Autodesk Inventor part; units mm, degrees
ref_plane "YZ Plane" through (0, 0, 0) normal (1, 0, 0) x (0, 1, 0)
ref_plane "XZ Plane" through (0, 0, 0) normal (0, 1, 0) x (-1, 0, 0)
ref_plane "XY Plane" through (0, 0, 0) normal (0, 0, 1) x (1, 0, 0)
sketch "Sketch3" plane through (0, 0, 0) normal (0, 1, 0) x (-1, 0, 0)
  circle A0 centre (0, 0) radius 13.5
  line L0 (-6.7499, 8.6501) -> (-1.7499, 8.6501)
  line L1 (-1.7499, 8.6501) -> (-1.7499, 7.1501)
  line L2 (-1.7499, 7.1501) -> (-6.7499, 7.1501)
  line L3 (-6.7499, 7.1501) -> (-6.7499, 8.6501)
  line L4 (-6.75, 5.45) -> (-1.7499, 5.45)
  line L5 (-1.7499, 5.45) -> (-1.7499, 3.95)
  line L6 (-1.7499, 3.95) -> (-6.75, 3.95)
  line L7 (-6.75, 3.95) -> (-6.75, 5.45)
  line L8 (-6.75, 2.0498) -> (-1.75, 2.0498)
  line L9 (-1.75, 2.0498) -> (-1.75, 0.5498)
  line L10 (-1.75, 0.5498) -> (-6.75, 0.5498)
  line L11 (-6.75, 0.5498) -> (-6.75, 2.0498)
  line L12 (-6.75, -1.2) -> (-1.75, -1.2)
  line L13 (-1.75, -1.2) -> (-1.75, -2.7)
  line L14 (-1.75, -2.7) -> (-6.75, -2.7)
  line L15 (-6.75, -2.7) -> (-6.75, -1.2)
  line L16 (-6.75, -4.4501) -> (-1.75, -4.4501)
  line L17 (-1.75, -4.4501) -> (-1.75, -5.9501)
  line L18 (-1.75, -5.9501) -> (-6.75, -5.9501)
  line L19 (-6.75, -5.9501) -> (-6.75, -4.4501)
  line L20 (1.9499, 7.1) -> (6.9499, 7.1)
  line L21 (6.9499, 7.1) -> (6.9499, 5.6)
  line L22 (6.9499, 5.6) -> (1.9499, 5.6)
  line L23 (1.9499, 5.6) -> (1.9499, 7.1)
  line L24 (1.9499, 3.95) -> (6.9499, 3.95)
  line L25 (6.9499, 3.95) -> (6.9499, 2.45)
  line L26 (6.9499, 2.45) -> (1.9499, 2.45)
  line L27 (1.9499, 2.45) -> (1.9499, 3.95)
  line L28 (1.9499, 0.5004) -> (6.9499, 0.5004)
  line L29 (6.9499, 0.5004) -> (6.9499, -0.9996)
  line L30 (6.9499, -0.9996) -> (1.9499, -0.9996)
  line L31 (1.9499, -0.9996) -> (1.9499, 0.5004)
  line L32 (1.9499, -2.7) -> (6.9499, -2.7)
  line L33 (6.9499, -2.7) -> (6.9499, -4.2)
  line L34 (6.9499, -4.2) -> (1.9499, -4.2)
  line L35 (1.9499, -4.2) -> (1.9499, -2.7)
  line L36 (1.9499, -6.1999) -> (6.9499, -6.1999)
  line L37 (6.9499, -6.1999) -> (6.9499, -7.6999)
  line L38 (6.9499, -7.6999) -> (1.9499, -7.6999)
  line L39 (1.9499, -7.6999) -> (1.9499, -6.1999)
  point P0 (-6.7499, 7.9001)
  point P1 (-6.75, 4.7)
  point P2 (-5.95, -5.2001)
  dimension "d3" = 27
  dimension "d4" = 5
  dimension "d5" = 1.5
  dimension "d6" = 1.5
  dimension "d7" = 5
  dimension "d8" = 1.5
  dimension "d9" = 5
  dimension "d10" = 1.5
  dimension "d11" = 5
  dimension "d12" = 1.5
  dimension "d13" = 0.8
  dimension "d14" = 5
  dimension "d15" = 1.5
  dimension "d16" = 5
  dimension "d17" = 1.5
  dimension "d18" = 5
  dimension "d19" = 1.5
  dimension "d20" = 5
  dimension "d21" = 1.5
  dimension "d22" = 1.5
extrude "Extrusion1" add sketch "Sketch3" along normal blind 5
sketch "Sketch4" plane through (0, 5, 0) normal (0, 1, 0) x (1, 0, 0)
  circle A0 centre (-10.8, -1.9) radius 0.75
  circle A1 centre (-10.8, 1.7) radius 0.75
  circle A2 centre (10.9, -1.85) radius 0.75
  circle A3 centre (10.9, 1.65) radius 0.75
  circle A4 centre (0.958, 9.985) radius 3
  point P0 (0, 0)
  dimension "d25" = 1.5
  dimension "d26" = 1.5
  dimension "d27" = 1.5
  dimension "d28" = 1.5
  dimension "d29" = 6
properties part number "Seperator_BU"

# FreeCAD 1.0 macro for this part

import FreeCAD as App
import Part
import Sketcher
Q = App.Units.Quantity

doc = App.newDocument("Part")
body = doc.addObject("PartDesign::Body", "Body")

# Sketch on XZ plane
sketch1 = body.newObject("Sketcher::SketchObject", "Sketch")
sketch1.AttachmentSupport = (doc.getObject("XZ_Plane"), [""])
sketch1.MapMode = "FlatFace"
sketch1.addGeometry(Part.Circle(App.Vector(0, 0, 0), App.Vector(0, 0, 1), 13.5), False)
sketch1.addGeometry(Part.LineSegment(App.Vector(6.8, -6, 0), App.Vector(6.8, -4.5, 0)), False)
sketch1.addGeometry(Part.LineSegment(App.Vector(6.8, -4.5, 0), App.Vector(1.8, -4.5, 0)), False)
sketch1.addGeometry(Part.LineSegment(App.Vector(1.8, -4.5, 0), App.Vector(1.8, -6, 0)), False)
sketch1.addGeometry(Part.LineSegment(App.Vector(1.8, -6, 0), App.Vector(6.8, -6, 0)), False)
sketch1.addGeometry(Part.LineSegment(App.Vector(6.8, -2.7, 0), App.Vector(6.8, -1.2, 0)), False)
sketch1.addGeometry(Part.LineSegment(App.Vector(6.8, -1.2, 0), App.Vector(1.8, -1.2, 0)), False)
sketch1.addGeometry(Part.LineSegment(App.Vector(1.8, -1.2, 0), App.Vector(1.8, -2.7, 0)), False)
sketch1.addGeometry(Part.LineSegment(App.Vector(1.8, -2.7, 0), App.Vector(6.8, -2.7, 0)), False)
sketch1.addGeometry(Part.LineSegment(App.Vector(-1.9, -7.7, 0), App.Vector(-1.9, -6.2, 0)), False)
sketch1.addGeometry(Part.LineSegment(App.Vector(-1.9, -6.2, 0), App.Vector(-6.9, -6.2, 0)), False)
sketch1.addGeometry(Part.LineSegment(App.Vector(-6.9, -6.2, 0), App.Vector(-6.9, -7.7, 0)), False)
sketch1.addGeometry(Part.LineSegment(App.Vector(-6.9, -7.7, 0), App.Vector(-1.9, -7.7, 0)), False)
sketch1.addGeometry(Part.LineSegment(App.Vector(-1.9, -4.2, 0), App.Vector(-1.9, -2.7, 0)), False)
sketch1.addGeometry(Part.LineSegment(App.Vector(-1.9, -2.7, 0), App.Vector(-6.9, -2.7, 0)), False)
sketch1.addGeometry(Part.LineSegment(App.Vector(-6.9, -2.7, 0), App.Vector(-6.9, -4.2, 0)), False)
sketch1.addGeometry(Part.LineSegment(App.Vector(-6.9, -4.2, 0), App.Vector(-1.9, -4.2, 0)), False)
sketch1.addGeometry(Part.LineSegment(App.Vector(-1.9, -1, 0), App.Vector(-1.9, 0.5, 0)), False)
sketch1.addGeometry(Part.LineSegment(App.Vector(-1.9, 0.5, 0), App.Vector(-6.9, 0.5, 0)), False)
sketch1.addGeometry(Part.LineSegment(App.Vector(-6.9, 0.5, 0), App.Vector(-6.9, -1, 0)), False)
sketch1.addGeometry(Part.LineSegment(App.Vector(-6.9, -1, 0), App.Vector(-1.9, -1, 0)), False)
sketch1.addGeometry(Part.LineSegment(App.Vector(6.8, 0.5, 0), App.Vector(6.8, 2, 0)), False)
sketch1.addGeometry(Part.LineSegment(App.Vector(6.8, 2, 0), App.Vector(1.8, 2, 0)), False)
sketch1.addGeometry(Part.LineSegment(App.Vector(1.8, 2, 0), App.Vector(1.8, 0.5, 0)), False)
sketch1.addGeometry(Part.LineSegment(App.Vector(1.8, 0.5, 0), App.Vector(6.8, 0.5, 0)), False)
sketch1.addGeometry(Part.LineSegment(App.Vector(6.8, 4, 0), App.Vector(6.8, 5.5, 0)), False)
sketch1.addGeometry(Part.LineSegment(App.Vector(6.8, 5.5, 0), App.Vector(1.7, 5.5, 0)), False)
sketch1.addGeometry(Part.LineSegment(App.Vector(1.7, 5.5, 0), App.Vector(1.7, 4, 0)), False)
sketch1.addGeometry(Part.LineSegment(App.Vector(1.7, 4, 0), App.Vector(6.8, 4, 0)), False)
sketch1.addGeometry(Part.LineSegment(App.Vector(6.7, 7.2, 0), App.Vector(6.7, 8.7, 0)), False)
sketch1.addGeometry(Part.LineSegment(App.Vector(6.7, 8.7, 0), App.Vector(1.7, 8.7, 0)), False)
sketch1.addGeometry(Part.LineSegment(App.Vector(1.7, 8.7, 0), App.Vector(1.7, 7.2, 0)), False)
sketch1.addGeometry(Part.LineSegment(App.Vector(1.7, 7.2, 0), App.Vector(6.7, 7.2, 0)), False)
sketch1.addGeometry(Part.LineSegment(App.Vector(-1.9, 2.5, 0), App.Vector(-1.9, 4, 0)), False)
sketch1.addGeometry(Part.LineSegment(App.Vector(-1.9, 4, 0), App.Vector(-6.9, 4, 0)), False)
sketch1.addGeometry(Part.LineSegment(App.Vector(-6.9, 4, 0), App.Vector(-6.9, 2.5, 0)), False)
sketch1.addGeometry(Part.LineSegment(App.Vector(-6.9, 2.5, 0), App.Vector(-1.9, 2.5, 0)), False)
sketch1.addGeometry(Part.LineSegment(App.Vector(-1.9, 5.6, 0), App.Vector(-1.9, 7.1, 0)), False)
sketch1.addGeometry(Part.LineSegment(App.Vector(-1.9, 7.1, 0), App.Vector(-6.9, 7.1, 0)), False)
sketch1.addGeometry(Part.LineSegment(App.Vector(-6.9, 7.1, 0), App.Vector(-6.9, 5.6, 0)), False)
sketch1.addGeometry(Part.LineSegment(App.Vector(-6.9, 5.6, 0), App.Vector(-1.9, 5.6, 0)), False)
sketch1.addConstraint(Sketcher.Constraint("Coincident", 1, 2, 2, 1))
sketch1.addConstraint(Sketcher.Constraint("Coincident", 2, 2, 3, 1))
sketch1.addConstraint(Sketcher.Constraint("Coincident", 3, 2, 4, 1))
sketch1.addConstraint(Sketcher.Constraint("Coincident", 4, 2, 1, 1))
sketch1.addConstraint(Sketcher.Constraint("Coincident", 5, 2, 6, 1))
sketch1.addConstraint(Sketcher.Constraint("Coincident", 6, 2, 7, 1))
sketch1.addConstraint(Sketcher.Constraint("Coincident", 7, 2, 8, 1))
sketch1.addConstraint(Sketcher.Constraint("Coincident", 8, 2, 5, 1))
sketch1.addConstraint(Sketcher.Constraint("Coincident", 9, 2, 10, 1))
sketch1.addConstraint(Sketcher.Constraint("Coincident", 10, 2, 11, 1))
sketch1.addConstraint(Sketcher.Constraint("Coincident", 11, 2, 12, 1))
sketch1.addConstraint(Sketcher.Constraint("Coincident", 12, 2, 9, 1))
sketch1.addConstraint(Sketcher.Constraint("Coincident", 13, 2, 14, 1))
sketch1.addConstraint(Sketcher.Constraint("Coincident", 14, 2, 15, 1))
sketch1.addConstraint(Sketcher.Constraint("Coincident", 15, 2, 16, 1))
sketch1.addConstraint(Sketcher.Constraint("Coincident", 16, 2, 13, 1))
sketch1.addConstraint(Sketcher.Constraint("Coincident", 17, 2, 18, 1))
sketch1.addConstraint(Sketcher.Constraint("Coincident", 18, 2, 19, 1))
sketch1.addConstraint(Sketcher.Constraint("Coincident", 19, 2, 20, 1))
sketch1.addConstraint(Sketcher.Constraint("Coincident", 20, 2, 17, 1))
sketch1.addConstraint(Sketcher.Constraint("Coincident", 21, 2, 22, 1))
sketch1.addConstraint(Sketcher.Constraint("Coincident", 22, 2, 23, 1))
sketch1.addConstraint(Sketcher.Constraint("Coincident", 23, 2, 24, 1))
sketch1.addConstraint(Sketcher.Constraint("Coincident", 24, 2, 21, 1))
sketch1.addConstraint(Sketcher.Constraint("Coincident", 25, 2, 26, 1))
sketch1.addConstraint(Sketcher.Constraint("Coincident", 26, 2, 27, 1))
sketch1.addConstraint(Sketcher.Constraint("Coincident", 27, 2, 28, 1))
sketch1.addConstraint(Sketcher.Constraint("Coincident", 28, 2, 25, 1))
sketch1.addConstraint(Sketcher.Constraint("Coincident", 29, 2, 30, 1))
sketch1.addConstraint(Sketcher.Constraint("Coincident", 30, 2, 31, 1))
sketch1.addConstraint(Sketcher.Constraint("Coincident", 31, 2, 32, 1))
sketch1.addConstraint(Sketcher.Constraint("Coincident", 32, 2, 29, 1))
sketch1.addConstraint(Sketcher.Constraint("Coincident", 33, 2, 34, 1))
sketch1.addConstraint(Sketcher.Constraint("Coincident", 34, 2, 35, 1))
sketch1.addConstraint(Sketcher.Constraint("Coincident", 35, 2, 36, 1))
sketch1.addConstraint(Sketcher.Constraint("Coincident", 36, 2, 33, 1))
sketch1.addConstraint(Sketcher.Constraint("Coincident", 37, 2, 38, 1))
sketch1.addConstraint(Sketcher.Constraint("Coincident", 38, 2, 39, 1))
sketch1.addConstraint(Sketcher.Constraint("Coincident", 39, 2, 40, 1))
sketch1.addConstraint(Sketcher.Constraint("Coincident", 40, 2, 37, 1))
sketch1.addConstraint(Sketcher.Constraint("Vertical", 1))
sketch1.addConstraint(Sketcher.Constraint("Horizontal", 2))
sketch1.addConstraint(Sketcher.Constraint("Vertical", 3))
sketch1.addConstraint(Sketcher.Constraint("Horizontal", 4))
sketch1.addConstraint(Sketcher.Constraint("Vertical", 5))
sketch1.addConstraint(Sketcher.Constraint("Horizontal", 6))
sketch1.addConstraint(Sketcher.Constraint("Vertical", 7))
sketch1.addConstraint(Sketcher.Constraint("Horizontal", 8))
sketch1.addConstraint(Sketcher.Constraint("Vertical", 9))
sketch1.addConstraint(Sketcher.Constraint("Horizontal", 10))
sketch1.addConstraint(Sketcher.Constraint("Vertical", 11))
sketch1.addConstraint(Sketcher.Constraint("Horizontal", 12))
sketch1.addConstraint(Sketcher.Constraint("Vertical", 13))
sketch1.addConstraint(Sketcher.Constraint("Horizontal", 14))
sketch1.addConstraint(Sketcher.Constraint("Vertical", 15))
sketch1.addConstraint(Sketcher.Constraint("Horizontal", 16))
sketch1.addConstraint(Sketcher.Constraint("Vertical", 17))
sketch1.addConstraint(Sketcher.Constraint("Horizontal", 18))
sketch1.addConstraint(Sketcher.Constraint("Vertical", 19))
sketch1.addConstraint(Sketcher.Constraint("Horizontal", 20))
sketch1.addConstraint(Sketcher.Constraint("Vertical", 21))
sketch1.addConstraint(Sketcher.Constraint("Horizontal", 22))
sketch1.addConstraint(Sketcher.Constraint("Vertical", 23))
sketch1.addConstraint(Sketcher.Constraint("Horizontal", 24))
sketch1.addConstraint(Sketcher.Constraint("Vertical", 25))
sketch1.addConstraint(Sketcher.Constraint("Horizontal", 26))
sketch1.addConstraint(Sketcher.Constraint("Vertical", 27))
sketch1.addConstraint(Sketcher.Constraint("Horizontal", 28))
sketch1.addConstraint(Sketcher.Constraint("Vertical", 29))
sketch1.addConstraint(Sketcher.Constraint("Horizontal", 30))
sketch1.addConstraint(Sketcher.Constraint("Vertical", 31))
sketch1.addConstraint(Sketcher.Constraint("Horizontal", 32))
sketch1.addConstraint(Sketcher.Constraint("Vertical", 33))
sketch1.addConstraint(Sketcher.Constraint("Horizontal", 34))
sketch1.addConstraint(Sketcher.Constraint("Vertical", 35))
sketch1.addConstraint(Sketcher.Constraint("Horizontal", 36))
sketch1.addConstraint(Sketcher.Constraint("Vertical", 37))
sketch1.addConstraint(Sketcher.Constraint("Horizontal", 38))
sketch1.addConstraint(Sketcher.Constraint("Vertical", 39))
sketch1.addConstraint(Sketcher.Constraint("Horizontal", 40))
sketch1.addConstraint(Sketcher.Constraint("Coincident", 0, 3, -1, 1))
sketch1.addConstraint(Sketcher.Constraint("Horizontal", 8, 2, 13, 2))
sketch1.addConstraint(Sketcher.Constraint("Horizontal", 28, 2, 33, 2))
sketch1.addConstraint(Sketcher.Constraint("Vertical", 4, 2, 5, 2))
sketch1.addConstraint(Sketcher.Constraint("Vertical", 3, 2, 6, 2))
sketch1.addConstraint(Sketcher.Constraint("Vertical", 12, 2, 13, 2))
sketch1.addConstraint(Sketcher.Constraint("Vertical", 11, 2, 14, 2))
sketch1.addConstraint(Sketcher.Constraint("Vertical", 16, 2, 17, 2))
sketch1.addConstraint(Sketcher.Constraint("Vertical", 15, 2, 18, 2))
sketch1.addConstraint(Sketcher.Constraint("Vertical", 8, 2, 21, 2))
sketch1.addConstraint(Sketcher.Constraint("Vertical", 7, 2, 22, 2))
sketch1.addConstraint(Sketcher.Constraint("Vertical", 24, 2, 25, 2))
sketch1.addConstraint(Sketcher.Constraint("Vertical", 23, 2, 26, 2))
sketch1.addConstraint(Sketcher.Constraint("Vertical", 28, 2, 29, 2))
sketch1.addConstraint(Sketcher.Constraint("Vertical", 27, 2, 30, 2))
sketch1.addConstraint(Sketcher.Constraint("Vertical", 20, 2, 33, 2))
sketch1.addConstraint(Sketcher.Constraint("Vertical", 19, 2, 34, 2))
sketch1.addConstraint(Sketcher.Constraint("Vertical", 36, 2, 37, 2))
sketch1.addConstraint(Sketcher.Constraint("Vertical", 35, 2, 38, 2))
sketch1.addConstraint(Sketcher.Constraint("Equal", 8, 10))
sketch1.addConstraint(Sketcher.Constraint("Equal", 3, 5))
sketch1.addConstraint(Sketcher.Constraint("Equal", 7, 9))
sketch1.addConstraint(Sketcher.Constraint("Equal", 11, 13))
sketch1.addConstraint(Sketcher.Constraint("Equal", 15, 17))
sketch1.addConstraint(Sketcher.Constraint("Equal", 19, 21))
sketch1.addConstraint(Sketcher.Constraint("Equal", 23, 25))
sketch1.addConstraint(Sketcher.Constraint("Equal", 27, 29))
sketch1.addConstraint(Sketcher.Constraint("Equal", 31, 33))
sketch1.addConstraint(Sketcher.Constraint("Equal", 35, 37))
sketch1.addConstraint(Sketcher.Constraint("Diameter", 0, Q("27 mm")))
sketch1.addConstraint(Sketcher.Constraint("DistanceX", 2, 2, 2, 1, Q("5 mm")))
sketch1.addConstraint(Sketcher.Constraint("DistanceY", 1, 1, 1, 2, Q("1.5 mm")))
sketch1.addConstraint(Sketcher.Constraint("DistanceY", 9, 2, 6, 2, Q("5 mm")))
sketch1.addConstraint(Sketcher.Constraint("DistanceY", 1, 2, 24, 2, Q("5 mm")))
sketch1.addConstraint(Sketcher.Constraint("DistanceY", 5, 2, -1, 1, Q("1.2 mm")))
sketch1.addConstraint(Sketcher.Constraint("DistanceY", -1, 1, 37, 2, Q("7.1 mm")))
sketch1.addConstraint(Sketcher.Constraint("DistanceX", 9, 2, 3, 2, Q("3.7 mm")))
sketch1.addConstraint(Sketcher.Constraint("DistanceY", 25, 2, 29, 2, Q("3.2 mm")))
sketch1.addConstraint(Sketcher.Constraint("DistanceX", -1, 1, 1, 2, Q("6.75 mm")))
sketch1.addConstraint(Sketcher.Constraint("DistanceY", 1, 2, -1, 1, Q("4.45 mm")))
sketch1.addConstraint(Sketcher.Constraint("DistanceY", -1, 1, 25, 2, Q("5.45 mm")))
sketch1.addConstraint(Sketcher.Constraint("DistanceY", -1, 1, 17, 2, Q("0.5004 mm")))
pad1 = body.newObject("PartDesign::Pad", "Pad")
pad1.Profile = sketch1
pad1.Length = 5
pad1.Reversed = True

doc.recompute()
